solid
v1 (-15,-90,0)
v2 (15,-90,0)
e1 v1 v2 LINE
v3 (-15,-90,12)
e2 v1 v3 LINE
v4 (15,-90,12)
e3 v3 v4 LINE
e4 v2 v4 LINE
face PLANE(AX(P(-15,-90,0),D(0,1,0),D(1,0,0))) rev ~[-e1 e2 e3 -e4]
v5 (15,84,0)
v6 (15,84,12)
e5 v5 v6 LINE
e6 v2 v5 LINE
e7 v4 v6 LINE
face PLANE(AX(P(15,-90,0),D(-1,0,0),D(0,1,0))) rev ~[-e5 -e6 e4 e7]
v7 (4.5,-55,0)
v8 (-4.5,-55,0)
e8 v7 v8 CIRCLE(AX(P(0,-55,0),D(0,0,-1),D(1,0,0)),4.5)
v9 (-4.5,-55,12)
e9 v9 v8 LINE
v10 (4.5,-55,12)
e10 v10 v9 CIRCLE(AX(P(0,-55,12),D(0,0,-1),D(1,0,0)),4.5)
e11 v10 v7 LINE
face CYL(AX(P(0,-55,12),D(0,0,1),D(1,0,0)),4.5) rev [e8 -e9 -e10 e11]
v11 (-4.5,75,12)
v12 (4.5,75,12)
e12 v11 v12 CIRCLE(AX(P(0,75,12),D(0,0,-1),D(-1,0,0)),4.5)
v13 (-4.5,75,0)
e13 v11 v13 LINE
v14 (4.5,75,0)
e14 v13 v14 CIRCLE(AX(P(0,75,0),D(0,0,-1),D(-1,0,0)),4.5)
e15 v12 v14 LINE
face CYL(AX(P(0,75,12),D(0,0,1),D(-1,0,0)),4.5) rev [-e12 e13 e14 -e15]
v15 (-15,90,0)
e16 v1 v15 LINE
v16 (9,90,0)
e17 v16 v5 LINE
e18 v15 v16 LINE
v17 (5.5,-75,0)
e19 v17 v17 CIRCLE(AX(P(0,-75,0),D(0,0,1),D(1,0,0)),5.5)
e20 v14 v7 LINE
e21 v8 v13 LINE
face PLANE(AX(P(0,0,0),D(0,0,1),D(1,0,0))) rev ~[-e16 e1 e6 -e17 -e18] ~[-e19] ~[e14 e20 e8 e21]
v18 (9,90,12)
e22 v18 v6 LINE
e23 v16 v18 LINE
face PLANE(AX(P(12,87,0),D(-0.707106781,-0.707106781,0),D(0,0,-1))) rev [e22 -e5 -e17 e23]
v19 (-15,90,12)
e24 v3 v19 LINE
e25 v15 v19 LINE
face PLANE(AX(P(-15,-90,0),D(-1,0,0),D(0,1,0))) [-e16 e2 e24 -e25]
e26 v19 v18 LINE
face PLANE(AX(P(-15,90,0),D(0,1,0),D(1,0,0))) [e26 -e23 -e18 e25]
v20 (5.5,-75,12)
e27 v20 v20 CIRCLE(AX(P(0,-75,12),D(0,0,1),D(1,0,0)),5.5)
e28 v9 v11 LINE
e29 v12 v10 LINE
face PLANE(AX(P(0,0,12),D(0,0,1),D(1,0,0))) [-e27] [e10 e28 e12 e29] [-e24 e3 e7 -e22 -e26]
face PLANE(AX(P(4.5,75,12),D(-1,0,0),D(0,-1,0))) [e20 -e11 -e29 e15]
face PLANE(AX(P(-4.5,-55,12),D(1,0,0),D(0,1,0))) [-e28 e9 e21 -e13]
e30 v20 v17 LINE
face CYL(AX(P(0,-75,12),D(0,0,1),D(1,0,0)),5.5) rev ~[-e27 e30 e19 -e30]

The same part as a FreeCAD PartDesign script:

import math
import FreeCAD as App
import Part
import Sketcher

V = App.Vector
Q = App.Units.Quantity


def edges_at(feature, points):
    """Names of the edges that pass closest to the given points."""
    edges = feature.Shape.Edges
    near = lambda p: min(range(len(edges)), key=lambda i: edges[i].distToShape(Part.Vertex(*p))[0])
    return sorted({f"Edge{near(p) + 1}" for p in points})

doc = App.newDocument("Part")
body = doc.addObject("PartDesign::Body", "Body")

sketch1 = body.newObject("Sketcher::SketchObject", "Sketch")
sketch1.AttachmentSupport = (doc.getObject("XY_Plane"), [""])
sketch1.MapMode = "FlatFace"
sketch1.addGeometry(Part.LineSegment(V(-15, 90, 0), V(-15, -90, 0)), False)
sketch1.addGeometry(Part.LineSegment(V(-15, -90, 0), V(15, -90, 0)), False)
sketch1.addGeometry(Part.LineSegment(V(15, -90, 0), V(15, 90, 0)), False)
sketch1.addGeometry(Part.LineSegment(V(15, 90, 0), V(-15, 90, 0)), False)
sketch1.addConstraint(Sketcher.Constraint("Coincident", 0, 2, 1, 1))
sketch1.addConstraint(Sketcher.Constraint("Coincident", 1, 2, 2, 1))
sketch1.addConstraint(Sketcher.Constraint("Coincident", 2, 2, 3, 1))
sketch1.addConstraint(Sketcher.Constraint("Coincident", 3, 2, 0, 1))
sketch1.addConstraint(Sketcher.Constraint("Vertical", 0))
sketch1.addConstraint(Sketcher.Constraint("Horizontal", 1))
sketch1.addConstraint(Sketcher.Constraint("Vertical", 2))
sketch1.addConstraint(Sketcher.Constraint("Horizontal", 3))
sketch1.addConstraint(Sketcher.Constraint("Symmetric", 0, 2, 2, 2, -1, 1))
sketch1.addConstraint(Sketcher.Constraint("DistanceX", 1, 1, 1, 2, Q("30 mm")))
sketch1.addConstraint(Sketcher.Constraint("DistanceY", 0, 2, 0, 1, Q("180 mm")))
pad1 = body.newObject("PartDesign::Pad", "Pad")
pad1.Profile = sketch1
pad1.Length = 12

sketch2 = body.newObject("Sketcher::SketchObject", "Sketch001")
sketch2.AttachmentSupport = (doc.getObject("XY_Plane"), [""])
sketch2.MapMode = "FlatFace"
sketch2.AttachmentOffset = App.Placement(V(0, 0, 12), App.Rotation())
sketch2.addGeometry(Part.Circle(V(0, -75, 0), V(0, 0, 1), 5.5), False)
sketch2.addGeometry(Part.LineSegment(V(4.5, -55, 0), V(4.5, 75, 0)), False)
sketch2.addGeometry(Part.ArcOfCircle(Part.Circle(V(0, 75, 0), V(0, 0, 1), 4.5), math.radians(0), math.radians(180)), False)
sketch2.addGeometry(Part.LineSegment(V(-4.5, 75, 0), V(-4.5, -55, 0)), False)
sketch2.addGeometry(Part.ArcOfCircle(Part.Circle(V(0, -55, 0), V(0, 0, 1), 4.5), math.radians(180), math.radians(360)), False)
sketch2.addConstraint(Sketcher.Constraint("Tangent", 1, 2, 2, 1))
sketch2.addConstraint(Sketcher.Constraint("Tangent", 2, 2, 3, 1))
sketch2.addConstraint(Sketcher.Constraint("Tangent", 3, 2, 4, 1))
sketch2.addConstraint(Sketcher.Constraint("Tangent", 4, 2, 1, 1))
sketch2.addConstraint(Sketcher.Constraint("Vertical", 1))
sketch2.addConstraint(Sketcher.Constraint("Vertical", 3))
sketch2.addConstraint(Sketcher.Constraint("Symmetric", 0, 3, 2, 3, -1, 1))
sketch2.addConstraint(Sketcher.Constraint("PointOnObject", 0, 3, -2))
sketch2.addConstraint(Sketcher.Constraint("Diameter", 0, Q("11 mm")))
sketch2.addConstraint(Sketcher.Constraint("Radius", 2, Q("4.5 mm")))
sketch2.addConstraint(Sketcher.Constraint("DistanceY", 1, 1, 1, 2, Q("130 mm")))
sketch2.addConstraint(Sketcher.Constraint("DistanceY", 0, 3, -1, 1, Q("75 mm")))
pocket1 = body.newObject("PartDesign::Pocket", "Pocket")
pocket1.Profile = sketch2
pocket1.Length = 12
doc.recompute()

chamfer = body.newObject("PartDesign::Chamfer", "Chamfer")
chamfer.Base = (pocket1, edges_at(pocket1, [(15, 90, 6)]))
chamfer.Size = 6

doc.recompute()
